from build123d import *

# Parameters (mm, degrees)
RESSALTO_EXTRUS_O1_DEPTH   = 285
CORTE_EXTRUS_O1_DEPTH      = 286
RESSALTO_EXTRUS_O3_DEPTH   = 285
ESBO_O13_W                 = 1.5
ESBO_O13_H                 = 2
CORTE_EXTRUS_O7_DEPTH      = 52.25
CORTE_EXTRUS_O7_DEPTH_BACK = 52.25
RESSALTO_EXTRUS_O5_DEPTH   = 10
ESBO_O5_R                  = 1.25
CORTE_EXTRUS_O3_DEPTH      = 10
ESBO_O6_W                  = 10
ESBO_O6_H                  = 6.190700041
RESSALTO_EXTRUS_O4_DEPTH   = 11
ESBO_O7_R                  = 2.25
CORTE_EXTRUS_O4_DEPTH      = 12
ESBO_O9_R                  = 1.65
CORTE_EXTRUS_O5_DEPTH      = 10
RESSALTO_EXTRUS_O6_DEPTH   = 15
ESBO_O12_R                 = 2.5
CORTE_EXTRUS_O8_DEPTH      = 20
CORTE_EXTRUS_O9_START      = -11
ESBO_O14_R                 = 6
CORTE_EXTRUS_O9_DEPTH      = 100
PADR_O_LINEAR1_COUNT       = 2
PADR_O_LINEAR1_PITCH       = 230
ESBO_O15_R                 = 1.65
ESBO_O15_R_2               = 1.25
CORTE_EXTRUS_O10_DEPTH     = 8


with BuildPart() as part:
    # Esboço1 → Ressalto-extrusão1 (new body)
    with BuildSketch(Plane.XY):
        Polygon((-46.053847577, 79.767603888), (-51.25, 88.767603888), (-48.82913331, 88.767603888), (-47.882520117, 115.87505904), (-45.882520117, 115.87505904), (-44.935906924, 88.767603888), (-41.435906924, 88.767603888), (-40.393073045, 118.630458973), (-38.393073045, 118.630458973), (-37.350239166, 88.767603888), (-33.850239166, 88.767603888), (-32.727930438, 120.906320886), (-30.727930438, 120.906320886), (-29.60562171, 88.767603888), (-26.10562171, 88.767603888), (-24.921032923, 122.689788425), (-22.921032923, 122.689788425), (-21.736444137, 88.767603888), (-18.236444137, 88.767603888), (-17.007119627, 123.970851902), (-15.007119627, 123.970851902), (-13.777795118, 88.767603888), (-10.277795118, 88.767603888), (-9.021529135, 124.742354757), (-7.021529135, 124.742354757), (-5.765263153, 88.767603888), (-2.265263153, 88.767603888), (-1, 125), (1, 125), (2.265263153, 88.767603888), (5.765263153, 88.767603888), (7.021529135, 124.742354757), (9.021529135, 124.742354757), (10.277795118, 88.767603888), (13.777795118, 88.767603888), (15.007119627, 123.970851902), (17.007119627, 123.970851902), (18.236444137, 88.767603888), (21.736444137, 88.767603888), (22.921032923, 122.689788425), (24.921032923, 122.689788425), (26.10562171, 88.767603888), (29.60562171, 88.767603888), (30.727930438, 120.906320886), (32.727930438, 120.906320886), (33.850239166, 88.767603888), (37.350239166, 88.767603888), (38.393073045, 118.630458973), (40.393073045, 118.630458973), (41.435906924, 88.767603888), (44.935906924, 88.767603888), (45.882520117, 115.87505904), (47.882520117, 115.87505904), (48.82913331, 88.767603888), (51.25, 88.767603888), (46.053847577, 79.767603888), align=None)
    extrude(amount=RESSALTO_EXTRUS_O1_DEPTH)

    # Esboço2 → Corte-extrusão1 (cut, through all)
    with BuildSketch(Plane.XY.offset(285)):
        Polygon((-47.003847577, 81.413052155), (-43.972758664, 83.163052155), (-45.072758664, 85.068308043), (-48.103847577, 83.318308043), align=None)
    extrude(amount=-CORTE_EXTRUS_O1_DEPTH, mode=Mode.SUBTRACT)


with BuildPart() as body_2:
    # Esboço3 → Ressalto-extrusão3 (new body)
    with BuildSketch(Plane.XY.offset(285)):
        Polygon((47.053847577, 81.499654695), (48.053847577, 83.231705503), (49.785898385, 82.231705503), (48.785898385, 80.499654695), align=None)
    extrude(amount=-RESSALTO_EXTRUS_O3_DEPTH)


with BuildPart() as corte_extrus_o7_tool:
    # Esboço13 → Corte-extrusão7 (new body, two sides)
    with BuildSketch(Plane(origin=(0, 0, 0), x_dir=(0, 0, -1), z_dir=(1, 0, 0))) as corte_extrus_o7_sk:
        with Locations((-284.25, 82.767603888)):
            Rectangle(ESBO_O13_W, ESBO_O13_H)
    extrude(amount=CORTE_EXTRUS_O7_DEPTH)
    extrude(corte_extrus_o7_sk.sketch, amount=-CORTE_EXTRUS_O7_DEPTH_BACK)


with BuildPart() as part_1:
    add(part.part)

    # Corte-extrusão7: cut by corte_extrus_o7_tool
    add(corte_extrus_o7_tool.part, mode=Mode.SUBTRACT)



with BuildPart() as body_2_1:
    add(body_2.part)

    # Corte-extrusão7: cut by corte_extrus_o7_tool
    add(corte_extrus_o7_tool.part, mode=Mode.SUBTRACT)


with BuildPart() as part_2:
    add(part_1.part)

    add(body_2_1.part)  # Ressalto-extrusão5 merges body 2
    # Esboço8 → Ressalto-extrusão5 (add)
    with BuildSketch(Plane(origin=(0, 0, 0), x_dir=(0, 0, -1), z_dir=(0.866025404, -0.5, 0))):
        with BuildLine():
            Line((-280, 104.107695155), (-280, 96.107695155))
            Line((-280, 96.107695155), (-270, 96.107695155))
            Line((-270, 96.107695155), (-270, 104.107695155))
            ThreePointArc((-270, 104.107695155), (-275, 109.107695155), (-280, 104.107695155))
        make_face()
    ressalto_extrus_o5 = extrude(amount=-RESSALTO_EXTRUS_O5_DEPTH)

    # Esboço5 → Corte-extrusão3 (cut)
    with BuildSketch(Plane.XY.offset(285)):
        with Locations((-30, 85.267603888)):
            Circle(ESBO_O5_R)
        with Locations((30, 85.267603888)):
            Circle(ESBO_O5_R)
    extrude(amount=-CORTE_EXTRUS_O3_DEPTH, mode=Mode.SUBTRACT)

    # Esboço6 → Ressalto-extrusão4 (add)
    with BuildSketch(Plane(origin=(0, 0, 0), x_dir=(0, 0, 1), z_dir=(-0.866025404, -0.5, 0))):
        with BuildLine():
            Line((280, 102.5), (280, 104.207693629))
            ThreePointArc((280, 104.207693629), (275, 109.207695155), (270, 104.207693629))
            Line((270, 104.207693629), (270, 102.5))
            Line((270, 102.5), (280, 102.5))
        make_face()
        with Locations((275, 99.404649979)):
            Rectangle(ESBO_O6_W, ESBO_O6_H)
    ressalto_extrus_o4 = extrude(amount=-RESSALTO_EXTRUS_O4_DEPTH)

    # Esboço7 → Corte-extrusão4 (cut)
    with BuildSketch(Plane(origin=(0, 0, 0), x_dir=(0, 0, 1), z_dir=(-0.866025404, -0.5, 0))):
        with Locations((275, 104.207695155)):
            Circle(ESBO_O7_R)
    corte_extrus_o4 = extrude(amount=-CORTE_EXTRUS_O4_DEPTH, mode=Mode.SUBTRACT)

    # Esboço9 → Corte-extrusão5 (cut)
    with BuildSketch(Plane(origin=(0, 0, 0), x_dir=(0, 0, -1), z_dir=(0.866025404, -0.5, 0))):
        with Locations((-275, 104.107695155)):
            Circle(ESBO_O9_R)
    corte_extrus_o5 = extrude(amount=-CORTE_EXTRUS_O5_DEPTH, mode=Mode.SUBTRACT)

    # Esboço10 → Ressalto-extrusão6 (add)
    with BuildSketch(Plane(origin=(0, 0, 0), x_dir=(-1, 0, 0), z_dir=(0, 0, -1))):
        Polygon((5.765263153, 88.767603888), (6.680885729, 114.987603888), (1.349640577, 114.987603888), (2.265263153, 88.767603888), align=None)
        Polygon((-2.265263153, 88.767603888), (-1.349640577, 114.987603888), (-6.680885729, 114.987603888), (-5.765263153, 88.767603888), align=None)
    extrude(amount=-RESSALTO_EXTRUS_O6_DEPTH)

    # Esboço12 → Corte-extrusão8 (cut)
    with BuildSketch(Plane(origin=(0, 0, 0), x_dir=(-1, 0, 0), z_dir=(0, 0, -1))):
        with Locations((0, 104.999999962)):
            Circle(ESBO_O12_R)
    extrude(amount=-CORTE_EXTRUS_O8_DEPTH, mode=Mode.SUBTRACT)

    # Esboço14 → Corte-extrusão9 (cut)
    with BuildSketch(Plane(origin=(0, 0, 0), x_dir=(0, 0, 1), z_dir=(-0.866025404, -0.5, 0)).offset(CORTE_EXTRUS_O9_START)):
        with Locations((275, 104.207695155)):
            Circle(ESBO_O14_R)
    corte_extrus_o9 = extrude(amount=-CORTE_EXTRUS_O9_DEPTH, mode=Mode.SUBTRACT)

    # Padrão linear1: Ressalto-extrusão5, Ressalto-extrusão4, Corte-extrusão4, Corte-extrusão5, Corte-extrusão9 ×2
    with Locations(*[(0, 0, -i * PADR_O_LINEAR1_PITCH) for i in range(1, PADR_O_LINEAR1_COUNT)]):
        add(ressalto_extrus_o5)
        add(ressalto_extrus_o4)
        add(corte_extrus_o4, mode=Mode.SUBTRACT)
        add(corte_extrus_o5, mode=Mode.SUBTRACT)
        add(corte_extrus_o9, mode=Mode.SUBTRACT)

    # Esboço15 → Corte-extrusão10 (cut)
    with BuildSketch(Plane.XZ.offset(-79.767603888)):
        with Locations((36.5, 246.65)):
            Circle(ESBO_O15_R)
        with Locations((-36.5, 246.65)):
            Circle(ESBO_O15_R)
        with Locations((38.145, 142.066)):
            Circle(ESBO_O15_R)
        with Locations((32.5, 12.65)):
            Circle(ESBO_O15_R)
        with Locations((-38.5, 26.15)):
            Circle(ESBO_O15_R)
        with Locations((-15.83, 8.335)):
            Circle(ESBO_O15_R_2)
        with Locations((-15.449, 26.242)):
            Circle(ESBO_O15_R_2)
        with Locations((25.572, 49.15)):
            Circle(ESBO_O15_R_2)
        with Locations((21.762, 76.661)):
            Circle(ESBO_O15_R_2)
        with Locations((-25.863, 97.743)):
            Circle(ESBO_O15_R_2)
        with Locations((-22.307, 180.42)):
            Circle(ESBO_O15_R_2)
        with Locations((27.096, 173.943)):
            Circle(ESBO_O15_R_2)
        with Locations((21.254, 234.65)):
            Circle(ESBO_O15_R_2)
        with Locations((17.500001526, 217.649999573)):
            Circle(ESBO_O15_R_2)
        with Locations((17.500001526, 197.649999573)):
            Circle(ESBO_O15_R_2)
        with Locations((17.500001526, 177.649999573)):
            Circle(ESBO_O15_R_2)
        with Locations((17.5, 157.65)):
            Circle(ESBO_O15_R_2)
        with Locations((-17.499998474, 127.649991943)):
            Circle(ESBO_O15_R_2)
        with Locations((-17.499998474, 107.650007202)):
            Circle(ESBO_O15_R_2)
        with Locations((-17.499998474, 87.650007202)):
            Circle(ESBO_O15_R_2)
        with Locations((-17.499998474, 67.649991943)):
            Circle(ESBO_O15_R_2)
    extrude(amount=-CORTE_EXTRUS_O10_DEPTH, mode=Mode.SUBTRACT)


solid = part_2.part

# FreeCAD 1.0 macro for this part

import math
import FreeCAD as App
import Part
import Sketcher

V = App.Vector
Q = App.Units.Quantity

doc = App.newDocument("Part")
body = doc.addObject("PartDesign::Body", "Body")

sketch1 = doc.addObject("Sketcher::SketchObject", "Sketch")
body.addObject(sketch1)
sketch1.AttachmentSupport = (doc.XY_Plane, [""])
sketch1.MapMode = "FlatFace"
sketch1.addGeometry([
    Part.LineSegment(V(-51.2, 88.8, 0), V(-46.1, 79.8, 0)),
    Part.LineSegment(V(-46.1, 79.8, 0), V(46.1, 79.8, 0)),
    Part.LineSegment(V(46.1, 79.8, 0), V(51.2, 88.8, 0)),
    Part.LineSegment(V(51.2, 88.8, 0), V(48.8, 88.8, 0)),
    Part.LineSegment(V(48.8, 88.8, 0), V(47.9, 115.9, 0)),
    Part.LineSegment(V(47.9, 115.9, 0), V(45.9, 115.9, 0)),
    Part.LineSegment(V(45.9, 115.9, 0), V(44.9, 88.8, 0)),
    Part.LineSegment(V(44.9, 88.8, 0), V(41.4, 88.8, 0)),
    Part.LineSegment(V(41.4, 88.8, 0), V(40.4, 118.6, 0)),
    Part.LineSegment(V(40.4, 118.6, 0), V(38.4, 118.6, 0)),
    Part.LineSegment(V(38.4, 118.6, 0), V(37.4, 88.8, 0)),
    Part.LineSegment(V(37.4, 88.8, 0), V(33.9, 88.8, 0)),
    Part.LineSegment(V(33.9, 88.8, 0), V(32.7, 120.9, 0)),
    Part.LineSegment(V(32.7, 120.9, 0), V(30.7, 120.9, 0)),
    Part.LineSegment(V(30.7, 120.9, 0), V(29.6, 88.8, 0)),
    Part.LineSegment(V(29.6, 88.8, 0), V(26.1, 88.8, 0)),
    Part.LineSegment(V(26.1, 88.8, 0), V(24.9, 122.7, 0)),
    Part.LineSegment(V(24.9, 122.7, 0), V(22.9, 122.7, 0)),
    Part.LineSegment(V(22.9, 122.7, 0), V(21.7, 88.8, 0)),
    Part.LineSegment(V(21.7, 88.8, 0), V(18.2, 88.8, 0)),
    Part.LineSegment(V(18.2, 88.8, 0), V(17, 124, 0)),
    Part.LineSegment(V(17, 124, 0), V(15, 124, 0)),
    Part.LineSegment(V(15, 124, 0), V(13.8, 88.8, 0)),
    Part.LineSegment(V(13.8, 88.8, 0), V(10.3, 88.8, 0)),
    Part.LineSegment(V(10.3, 88.8, 0), V(9, 124.7, 0)),
    Part.LineSegment(V(9, 124.7, 0), V(7, 124.7, 0)),
    Part.LineSegment(V(7, 124.7, 0), V(5.8, 88.8, 0)),
    Part.LineSegment(V(5.8, 88.8, 0), V(2.3, 88.8, 0)),
    Part.LineSegment(V(2.3, 88.8, 0), V(1, 125, 0)),
    Part.LineSegment(V(1, 125, 0), V(-1, 125, 0)),
    Part.LineSegment(V(-1, 125, 0), V(-2.3, 88.8, 0)),
    Part.LineSegment(V(-2.3, 88.8, 0), V(-5.8, 88.8, 0)),
    Part.LineSegment(V(-5.8, 88.8, 0), V(-7, 124.7, 0)),
    Part.LineSegment(V(-7, 124.7, 0), V(-9, 124.7, 0)),
    Part.LineSegment(V(-9, 124.7, 0), V(-10.3, 88.8, 0)),
    Part.LineSegment(V(-10.3, 88.8, 0), V(-13.8, 88.8, 0)),
    Part.LineSegment(V(-13.8, 88.8, 0), V(-15, 124, 0)),
    Part.LineSegment(V(-15, 124, 0), V(-17, 124, 0)),
    Part.LineSegment(V(-17, 124, 0), V(-18.2, 88.8, 0)),
    Part.LineSegment(V(-18.2, 88.8, 0), V(-21.7, 88.8, 0)),
    Part.LineSegment(V(-21.7, 88.8, 0), V(-22.9, 122.7, 0)),
    Part.LineSegment(V(-22.9, 122.7, 0), V(-24.9, 122.7, 0)),
    Part.LineSegment(V(-24.9, 122.7, 0), V(-26.1, 88.8, 0)),
    Part.LineSegment(V(-26.1, 88.8, 0), V(-29.6, 88.8, 0)),
    Part.LineSegment(V(-29.6, 88.8, 0), V(-30.7, 120.9, 0)),
    Part.LineSegment(V(-30.7, 120.9, 0), V(-32.7, 120.9, 0)),
    Part.LineSegment(V(-32.7, 120.9, 0), V(-33.9, 88.8, 0)),
    Part.LineSegment(V(-33.9, 88.8, 0), V(-37.4, 88.8, 0)),
    Part.LineSegment(V(-37.4, 88.8, 0), V(-38.4, 118.6, 0)),
    Part.LineSegment(V(-38.4, 118.6, 0), V(-40.4, 118.6, 0)),
    Part.LineSegment(V(-40.4, 118.6, 0), V(-41.4, 88.8, 0)),
    Part.LineSegment(V(-41.4, 88.8, 0), V(-44.9, 88.8, 0)),
    Part.LineSegment(V(-44.9, 88.8, 0), V(-45.9, 115.9, 0)),
    Part.LineSegment(V(-45.9, 115.9, 0), V(-47.9, 115.9, 0)),
    Part.LineSegment(V(-47.9, 115.9, 0), V(-48.8, 88.8, 0)),
    Part.LineSegment(V(-48.8, 88.8, 0), V(-51.2, 88.8, 0)),
], False)
sketch1.addConstraint([
    Sketcher.Constraint("Coincident", 0, 2, 1, 1),
    Sketcher.Constraint("Coincident", 1, 2, 2, 1),
    Sketcher.Constraint("Coincident", 2, 2, 3, 1),
    Sketcher.Constraint("Coincident", 3, 2, 4, 1),
    Sketcher.Constraint("Coincident", 4, 2, 5, 1),
    Sketcher.Constraint("Coincident", 5, 2, 6, 1),
    Sketcher.Constraint("Coincident", 6, 2, 7, 1),
    Sketcher.Constraint("Coincident", 7, 2, 8, 1),
    Sketcher.Constraint("Coincident", 8, 2, 9, 1),
    Sketcher.Constraint("Coincident", 9, 2, 10, 1),
    Sketcher.Constraint("Coincident", 10, 2, 11, 1),
    Sketcher.Constraint("Coincident", 11, 2, 12, 1),
    Sketcher.Constraint("Coincident", 12, 2, 13, 1),
    Sketcher.Constraint("Coincident", 13, 2, 14, 1),
    Sketcher.Constraint("Coincident", 14, 2, 15, 1),
    Sketcher.Constraint("Coincident", 15, 2, 16, 1),
    Sketcher.Constraint("Coincident", 16, 2, 17, 1),
    Sketcher.Constraint("Coincident", 17, 2, 18, 1),
    Sketcher.Constraint("Coincident", 18, 2, 19, 1),
    Sketcher.Constraint("Coincident", 19, 2, 20, 1),
    Sketcher.Constraint("Coincident", 20, 2, 21, 1),
    Sketcher.Constraint("Coincident", 21, 2, 22, 1),
    Sketcher.Constraint("Coincident", 22, 2, 23, 1),
    Sketcher.Constraint("Coincident", 23, 2, 24, 1),
    Sketcher.Constraint("Coincident", 24, 2, 25, 1),
    Sketcher.Constraint("Coincident", 25, 2, 26, 1),
    Sketcher.Constraint("Coincident", 26, 2, 27, 1),
    Sketcher.Constraint("Coincident", 27, 2, 28, 1),
    Sketcher.Constraint("Coincident", 28, 2, 29, 1),
    Sketcher.Constraint("Coincident", 29, 2, 30, 1),
    Sketcher.Constraint("Coincident", 30, 2, 31, 1),
    Sketcher.Constraint("Coincident", 31, 2, 32, 1),
    Sketcher.Constraint("Coincident", 32, 2, 33, 1),
    Sketcher.Constraint("Coincident", 33, 2, 34, 1),
    Sketcher.Constraint("Coincident", 34, 2, 35, 1),
    Sketcher.Constraint("Coincident", 35, 2, 36, 1),
    Sketcher.Constraint("Coincident", 36, 2, 37, 1),
    Sketcher.Constraint("Coincident", 37, 2, 38, 1),
    Sketcher.Constraint("Coincident", 38, 2, 39, 1),
    Sketcher.Constraint("Coincident", 39, 2, 40, 1),
    Sketcher.Constraint("Coincident", 40, 2, 41, 1),
    Sketcher.Constraint("Coincident", 41, 2, 42, 1),
    Sketcher.Constraint("Coincident", 42, 2, 43, 1),
    Sketcher.Constraint("Coincident", 43, 2, 44, 1),
    Sketcher.Constraint("Coincident", 44, 2, 45, 1),
    Sketcher.Constraint("Coincident", 45, 2, 46, 1),
    Sketcher.Constraint("Coincident", 46, 2, 47, 1),
    Sketcher.Constraint("Coincident", 47, 2, 48, 1),
    Sketcher.Constraint("Coincident", 48, 2, 49, 1),
    Sketcher.Constraint("Coincident", 49, 2, 50, 1),
    Sketcher.Constraint("Coincident", 50, 2, 51, 1),
    Sketcher.Constraint("Coincident", 51, 2, 52, 1),
    Sketcher.Constraint("Coincident", 52, 2, 53, 1),
    Sketcher.Constraint("Coincident", 53, 2, 54, 1),
    Sketcher.Constraint("Coincident", 54, 2, 55, 1),
    Sketcher.Constraint("Coincident", 55, 2, 0, 1),
    Sketcher.Constraint("Horizontal", 1),
    Sketcher.Constraint("Horizontal", 3),
    Sketcher.Constraint("Horizontal", 5),
    Sketcher.Constraint("Horizontal", 7),
    Sketcher.Constraint("Horizontal", 9),
    Sketcher.Constraint("Horizontal", 11),
    Sketcher.Constraint("Horizontal", 13),
    Sketcher.Constraint("Horizontal", 15),
    Sketcher.Constraint("Horizontal", 17),
    Sketcher.Constraint("Horizontal", 19),
    Sketcher.Constraint("Horizontal", 21),
    Sketcher.Constraint("Horizontal", 23),
    Sketcher.Constraint("Horizontal", 25),
    Sketcher.Constraint("Horizontal", 27),
    Sketcher.Constraint("Horizontal", 29),
    Sketcher.Constraint("Horizontal", 31),
    Sketcher.Constraint("Horizontal", 33),
    Sketcher.Constraint("Horizontal", 35),
    Sketcher.Constraint("Horizontal", 37),
    Sketcher.Constraint("Horizontal", 39),
    Sketcher.Constraint("Horizontal", 41),
    Sketcher.Constraint("Horizontal", 43),
    Sketcher.Constraint("Horizontal", 45),
    Sketcher.Constraint("Horizontal", 47),
    Sketcher.Constraint("Horizontal", 49),
    Sketcher.Constraint("Horizontal", 51),
    Sketcher.Constraint("Horizontal", 53),
    Sketcher.Constraint("Horizontal", 55),
    Sketcher.Constraint("Symmetric", 27, 2, 30, 2, -2),
    Sketcher.Constraint("Symmetric", 25, 2, 32, 2, -2),
    Sketcher.Constraint("Symmetric", 23, 2, 34, 2, -2),
    Sketcher.Constraint("Symmetric", 21, 2, 36, 2, -2),
    Sketcher.Constraint("Symmetric", 19, 2, 38, 2, -2),
    Sketcher.Constraint("Symmetric", 17, 2, 40, 2, -2),
    Sketcher.Constraint("Symmetric", 15, 2, 42, 2, -2),
    Sketcher.Constraint("Symmetric", 13, 2, 44, 2, -2),
    Sketcher.Constraint("Symmetric", 11, 2, 46, 2, -2),
    Sketcher.Constraint("Symmetric", 9, 2, 48, 2, -2),
    Sketcher.Constraint("Symmetric", 7, 2, 50, 2, -2),
    Sketcher.Constraint("Symmetric", 5, 2, 52, 2, -2),
    Sketcher.Constraint("Symmetric", 3, 2, 54, 2, -2),
    Sketcher.Constraint("Parallel", 4, 8),
    Sketcher.Constraint("Parallel", 6, 10),
    Sketcher.Constraint("Parallel", 8, 12),
    Sketcher.Constraint("Parallel", 10, 14),
    Sketcher.Constraint("Parallel", 12, 16),
    Sketcher.Constraint("Parallel", 14, 18),
    Sketcher.Constraint("Parallel", 16, 20),
    Sketcher.Constraint("Parallel", 18, 22),
    Sketcher.Constraint("Parallel", 20, 24),
    Sketcher.Constraint("Parallel", 22, 26),
    Sketcher.Constraint("Parallel", 24, 28),
    Sketcher.Constraint("Parallel", 26, 30),
    Sketcher.Constraint("Parallel", 28, 32),
    Sketcher.Constraint("Parallel", 30, 34),
    Sketcher.Constraint("Parallel", 32, 36),
    Sketcher.Constraint("Parallel", 34, 38),
    Sketcher.Constraint("Parallel", 36, 40),
    Sketcher.Constraint("Parallel", 38, 42),
    Sketcher.Constraint("Parallel", 40, 44),
    Sketcher.Constraint("Parallel", 42, 46),
    Sketcher.Constraint("Parallel", 44, 48),
    Sketcher.Constraint("Parallel", 46, 50),
    Sketcher.Constraint("Parallel", 48, 52),
    Sketcher.Constraint("Parallel", 50, 54),
    Sketcher.Constraint("Horizontal", 3, 2, 6, 2),
    Sketcher.Constraint("Horizontal", 7, 2, 10, 2),
    Sketcher.Constraint("Horizontal", 11, 2, 14, 2),
    Sketcher.Constraint("Horizontal", 15, 2, 18, 2),
    Sketcher.Constraint("Horizontal", 19, 2, 22, 2),
    Sketcher.Constraint("Horizontal", 23, 2, 26, 2),
    Sketcher.Constraint("Equal", 5, 9),
    Sketcher.Constraint("Equal", 7, 11),
    Sketcher.Constraint("Equal", 9, 13),
    Sketcher.Constraint("Equal", 11, 15),
    Sketcher.Constraint("Equal", 13, 17),
    Sketcher.Constraint("Equal", 15, 19),
    Sketcher.Constraint("Equal", 17, 21),
    Sketcher.Constraint("Equal", 19, 23),
    Sketcher.Constraint("Equal", 21, 25),
    Sketcher.Constraint("Equal", 23, 27),
    Sketcher.Constraint("Equal", 25, 29),
    Sketcher.Constraint("Equal", 27, 31),
    Sketcher.Constraint("Equal", 3, 55),
    Sketcher.Constraint("Equal", 0, 2),
    Sketcher.Constraint("DistanceX", 5, 2, 5, 1, 2.0),
    Sketcher.Constraint("Angle", 0, Q("-60 deg")),
    Sketcher.Constraint("Angle", 4, Q("92 deg")),
    Sketcher.Constraint("DistanceX", 7, 2, 7, 1, 3.5),
    Sketcher.Constraint("DistanceY", -1, 1, 28, 2, 125.0),
    Sketcher.Constraint("DistanceY", 1, 2, 2, 2, 9.0),
    Sketcher.Constraint("DistanceX", -1, 1, 2, 2, 51.25),
    Sketcher.Constraint("DistanceY", 5, 2, 8, 2, 2.7554),
    Sketcher.Constraint("DistanceX", 24, 2, 13, 2, 21.706401),
    Sketcher.Constraint("Distance", 4, 27.123978),
    Sketcher.Constraint("Distance", 16, 33.942862),
    Sketcher.Constraint("Distance", 24, 35.996679),
    Sketcher.Constraint("Distance", 28, 36.254481),
    Sketcher.Constraint("DistanceX", 3, 2, 3, 1, 2.420867),
])
pad1 = doc.addObject("PartDesign::Pad", "Pad")
body.addObject(pad1)
pad1.Profile = sketch1
pad1.Length = 285

sketch2 = doc.addObject("Sketcher::SketchObject", "Sketch001")
body.addObject(sketch2)
sketch2.AttachmentSupport = (doc.XY_Plane, [""])
sketch2.MapMode = "FlatFace"
sketch2.AttachmentOffset = App.Placement(V(0, 0, 285), App.Rotation())
sketch2.addGeometry([
    Part.LineSegment(V(-47, 81.4, 0), V(-44, 83.2, 0)),
    Part.LineSegment(V(-44, 83.2, 0), V(-45.1, 85.1, 0)),
    Part.LineSegment(V(-45.1, 85.1, 0), V(-48.1, 83.3, 0)),
    Part.LineSegment(V(-48.1, 83.3, 0), V(-47, 81.4, 0)),
], False)
sketch2.addConstraint([
    Sketcher.Constraint("Coincident", 0, 2, 1, 1),
    Sketcher.Constraint("Coincident", 1, 2, 2, 1),
    Sketcher.Constraint("Coincident", 2, 2, 3, 1),
    Sketcher.Constraint("Coincident", 3, 2, 0, 1),
    Sketcher.Constraint("Perpendicular", 0, 1),
    Sketcher.Constraint("Perpendicular", 1, 2),
    Sketcher.Constraint("Perpendicular", 2, 3),
    Sketcher.Constraint("Angle", 0, Q("30 deg")),
    Sketcher.Constraint("Distance", 0, 3.5),
    Sketcher.Constraint("Distance", 1, 2.2),
    Sketcher.Constraint("DistanceX", 0, 2, -1, 1, 43.972759),
    Sketcher.Constraint("DistanceY", -1, 1, 1, 2, 85.068308),
])
pocket1 = doc.addObject("PartDesign::Pocket", "Pocket")
body.addObject(pocket1)
pocket1.Profile = sketch2
pocket1.Type = "ThroughAll"
body2 = doc.addObject("PartDesign::Body", "Body001")

sketch3 = doc.addObject("Sketcher::SketchObject", "Sketch002")
body2.addObject(sketch3)
sketch3.AttachmentSupport = (doc.getObject("XY_Plane001"), [""])
sketch3.MapMode = "FlatFace"
sketch3.AttachmentOffset = App.Placement(V(0, 0, 285), App.Rotation())
sketch3.addGeometry([
    Part.LineSegment(V(48.1, 83.2, 0), V(47.1, 81.5, 0)),
    Part.LineSegment(V(47.1, 81.5, 0), V(48.8, 80.5, 0)),
    Part.LineSegment(V(48.8, 80.5, 0), V(49.8, 82.2, 0)),
    Part.LineSegment(V(49.8, 82.2, 0), V(48.1, 83.2, 0)),
], False)
sketch3.addConstraint([
    Sketcher.Constraint("Coincident", 0, 2, 1, 1),
    Sketcher.Constraint("Coincident", 1, 2, 2, 1),
    Sketcher.Constraint("Coincident", 2, 2, 3, 1),
    Sketcher.Constraint("Coincident", 3, 2, 0, 1),
    Sketcher.Constraint("Perpendicular", 0, 1),
    Sketcher.Constraint("Perpendicular", 1, 2),
    Sketcher.Constraint("Perpendicular", 2, 3),
    Sketcher.Constraint("Equal", 0, 1),
    Sketcher.Constraint("Angle", 0, Q("-120 deg")),
    Sketcher.Constraint("Distance", 0, 2.0),
    Sketcher.Constraint("DistanceX", -1, 1, 1, 2, 48.785898),
    Sketcher.Constraint("DistanceY", -1, 1, 0, 2, 81.499655),
])
pad2 = doc.addObject("PartDesign::Pad", "Pad001")
body2.addObject(pad2)
pad2.Profile = sketch3
pad2.Length = 285
pad2.Reversed = True
body3 = doc.addObject("PartDesign::Body", "Body002")

sketch4 = doc.addObject("Sketcher::SketchObject", "Sketch003")
body3.addObject(sketch4)
sketch4.AttachmentSupport = (doc.getObject("YZ_Plane002"), [""])
sketch4.MapMode = "FlatFace"
sketch4.addGeometry([
    Part.LineSegment(V(83.8, 285, 0), V(81.8, 285, 0)),
    Part.LineSegment(V(81.8, 285, 0), V(81.8, 283.5, 0)),
    Part.LineSegment(V(81.8, 283.5, 0), V(83.8, 283.5, 0)),
    Part.LineSegment(V(83.8, 283.5, 0), V(83.8, 285, 0)),
], False)
sketch4.addConstraint([
    Sketcher.Constraint("Coincident", 0, 2, 1, 1),
    Sketcher.Constraint("Coincident", 1, 2, 2, 1),
    Sketcher.Constraint("Coincident", 2, 2, 3, 1),
    Sketcher.Constraint("Coincident", 3, 2, 0, 1),
    Sketcher.Constraint("Horizontal", 0),
    Sketcher.Constraint("Vertical", 1),
    Sketcher.Constraint("Horizontal", 2),
    Sketcher.Constraint("Vertical", 3),
    Sketcher.Constraint("DistanceX", 0, 2, 0, 1, 2.0),
    Sketcher.Constraint("DistanceY", 1, 2, 1, 1, 1.5),
    Sketcher.Constraint("DistanceY", -1, 1, 0, 2, 285.0),
    Sketcher.Constraint("DistanceX", -1, 1, 0, 2, 81.767604),
])
pad3 = doc.addObject("PartDesign::Pad", "Pad002")
body3.addObject(pad3)
pad3.Profile = sketch4
pad3.Type = "TwoLengths"
pad3.Length = 52.25
pad3.Length2 = 52.25
doc.recompute()

body4 = doc.addObject("PartDesign::Body", "Body003")
body4.BaseFeature = body3
boolean = doc.addObject("PartDesign::Boolean", "Boolean")
body.addObject(boolean)
boolean.Type = "Cut"
boolean.addObjects([body4])
doc.recompute()

boolean2 = doc.addObject("PartDesign::Boolean", "Boolean001")
body2.addObject(boolean2)
boolean2.Type = "Cut"
boolean2.addObjects([body3])
doc.recompute()

boolean3 = doc.addObject("PartDesign::Boolean", "Boolean002")
body.addObject(boolean3)
boolean3.Type = "Fuse"
boolean3.addObjects([body2])

sketch5 = doc.addObject("Sketcher::SketchObject", "Sketch004")
body.addObject(sketch5)
sketch5.Placement = App.Placement(V(0, 0, 0), App.Rotation(V(0, 0, -1), V(0.5, 0.866025404, 0), V(0.866025404, -0.5, 0), "ZXY"))
sketch5.addGeometry([
    Part.LineSegment(V(-280, 104, 0), V(-280, 96, 0)),
    Part.LineSegment(V(-280, 96, 0), V(-270, 96, 0)),
    Part.LineSegment(V(-270, 96, 0), V(-270, 104, 0)),
    Part.ArcOfCircle(Part.Circle(V(-275, 104, 0), V(0, 0, 1), 5), math.radians(0), math.radians(180)),
], False)
sketch5.addConstraint([
    Sketcher.Constraint("Coincident", 0, 2, 1, 1),
    Sketcher.Constraint("Coincident", 1, 2, 2, 1),
    Sketcher.Constraint("Tangent", 2, 2, 3, 1),
    Sketcher.Constraint("Tangent", 3, 2, 0, 1),
    Sketcher.Constraint("Vertical", 0),
    Sketcher.Constraint("Horizontal", 1),
    Sketcher.Constraint("Vertical", 2),
    Sketcher.Constraint("Radius", 3, 5.0),
    Sketcher.Constraint("DistanceY", 0, 2, 0, 1, 8.0),
    Sketcher.Constraint("DistanceX", 3, 3, -1, 1, 275.0),
    Sketcher.Constraint("DistanceY", -1, 1, 3, 3, 104.107695),
])
pad4 = doc.addObject("PartDesign::Pad", "Pad003")
body.addObject(pad4)
pad4.Profile = sketch5
pad4.Length = 10
pad4.Reversed = True

sketch6 = doc.addObject("Sketcher::SketchObject", "Sketch005")
body.addObject(sketch6)
sketch6.AttachmentSupport = (doc.XY_Plane, [""])
sketch6.MapMode = "FlatFace"
sketch6.AttachmentOffset = App.Placement(V(0, 0, 285), App.Rotation())
sketch6.addGeometry([
    Part.Circle(V(-30, 85.3, 0), V(0, 0, 1), 1.2),
    Part.Circle(V(30, 85.3, 0), V(0, 0, 1), 1.2),
], False)
sketch6.addConstraint([
    Sketcher.Constraint("Equal", 0, 1),
    Sketcher.Constraint("Symmetric", 0, 3, 1, 3, -2),
    Sketcher.Constraint("Diameter", 0, 2.5),
    Sketcher.Constraint("DistanceX", 0, 3, -1, 1, 30.0),
    Sketcher.Constraint("DistanceY", -1, 1, 0, 3, 85.267604),
])
pocket2 = doc.addObject("PartDesign::Pocket", "Pocket001")
body.addObject(pocket2)
pocket2.Profile = sketch6
pocket2.Length = 10

sketch7 = doc.addObject("Sketcher::SketchObject", "Sketch006")
body.addObject(sketch7)
sketch7.Placement = App.Placement(V(0, 0, 0), App.Rotation(V(0, 0, 1), V(-0.5, 0.866025404, 0), V(-0.866025404, -0.5, 0), "ZXY"))
sketch7.addGeometry([
    Part.ArcOfCircle(Part.Circle(V(275, 104, 0), V(0, 0, 1), 5), math.radians(0), math.radians(180)),
    Part.LineSegment(V(270, 104, 0), V(270, 96, 0)),
    Part.LineSegment(V(270, 96, 0), V(280, 96, 0)),
    Part.LineSegment(V(280, 96, 0), V(280, 104, 0)),
], False)
sketch7.addConstraint([
    Sketcher.Constraint("Tangent", 0, 2, 1, 1),
    Sketcher.Constraint("Coincident", 1, 2, 2, 1),
    Sketcher.Constraint("Coincident", 2, 2, 3, 1),
    Sketcher.Constraint("Tangent", 3, 2, 0, 1),
    Sketcher.Constraint("Vertical", 1),
    Sketcher.Constraint("Horizontal", 2),
    Sketcher.Constraint("Vertical", 3),
    Sketcher.Constraint("Radius", 0, 5.0),
    Sketcher.Constraint("DistanceX", -1, 1, 0, 3, 275.0),
    Sketcher.Constraint("DistanceY", -1, 1, 1, 2, 96.3093),
    Sketcher.Constraint("DistanceY", 1, 2, 1, 1, 7.898394),
])
pad5 = doc.addObject("PartDesign::Pad", "Pad004")
body.addObject(pad5)
pad5.Profile = sketch7
pad5.Length = 11
pad5.Reversed = True

sketch8 = doc.addObject("Sketcher::SketchObject", "Sketch007")
body.addObject(sketch8)
sketch8.Placement = App.Placement(V(0, 0, 0), App.Rotation(V(0, 0, 1), V(-0.5, 0.866025404, 0), V(-0.866025404, -0.5, 0), "ZXY"))
sketch8.addGeometry(Part.Circle(V(275, 104.2, 0), V(0, 0, 1), 2.2), False)
sketch8.addConstraint([
    Sketcher.Constraint("Diameter", 0, 4.5),
    Sketcher.Constraint("DistanceX", -1, 1, 0, 3, 275.0),
    Sketcher.Constraint("DistanceY", -1, 1, 0, 3, 104.207695),
])
pocket3 = doc.addObject("PartDesign::Pocket", "Pocket002")
body.addObject(pocket3)
pocket3.Profile = sketch8
pocket3.Length = 12

sketch9 = doc.addObject("Sketcher::SketchObject", "Sketch008")
body.addObject(sketch9)
sketch9.Placement = App.Placement(V(0, 0, 0), App.Rotation(V(0, 0, -1), V(0.5, 0.866025404, 0), V(0.866025404, -0.5, 0), "ZXY"))
sketch9.addGeometry(Part.Circle(V(-275, 104.1, 0), V(0, 0, 1), 1.6), False)
sketch9.addConstraint([
    Sketcher.Constraint("Diameter", 0, 3.3),
    Sketcher.Constraint("DistanceX", 0, 3, -1, 1, 275.0),
    Sketcher.Constraint("DistanceY", -1, 1, 0, 3, 104.107695),
])
pocket4 = doc.addObject("PartDesign::Pocket", "Pocket003")
body.addObject(pocket4)
pocket4.Profile = sketch9
pocket4.Length = 10

sketch10 = doc.addObject("Sketcher::SketchObject", "Sketch009")
body.addObject(sketch10)
sketch10.AttachmentSupport = (doc.XY_Plane, [""])
sketch10.MapMode = "FlatFace"
sketch10.addGeometry([
    Part.LineSegment(V(-5.8, 88.8, 0), V(-6.7, 115, 0)),
    Part.LineSegment(V(-6.7, 115, 0), V(-1.3, 115, 0)),
    Part.LineSegment(V(-1.3, 115, 0), V(-2.3, 88.8, 0)),
    Part.LineSegment(V(-2.3, 88.8, 0), V(-5.8, 88.8, 0)),
    Part.LineSegment(V(2.3, 88.8, 0), V(1.3, 115, 0)),
    Part.LineSegment(V(1.3, 115, 0), V(6.7, 115, 0)),
    Part.LineSegment(V(6.7, 115, 0), V(5.8, 88.8, 0)),
    Part.LineSegment(V(5.8, 88.8, 0), V(2.3, 88.8, 0)),
], False)
sketch10.addConstraint([
    Sketcher.Constraint("Coincident", 0, 2, 1, 1),
    Sketcher.Constraint("Coincident", 1, 2, 2, 1),
    Sketcher.Constraint("Coincident", 2, 2, 3, 1),
    Sketcher.Constraint("Coincident", 3, 2, 0, 1),
    Sketcher.Constraint("Coincident", 4, 2, 5, 1),
    Sketcher.Constraint("Coincident", 5, 2, 6, 1),
    Sketcher.Constraint("Coincident", 6, 2, 7, 1),
    Sketcher.Constraint("Coincident", 7, 2, 4, 1),
    Sketcher.Constraint("Horizontal", 1),
    Sketcher.Constraint("Horizontal", 3),
    Sketcher.Constraint("Horizontal", 5),
    Sketcher.Constraint("Horizontal", 7),
    Sketcher.Constraint("Symmetric", 1, 2, 4, 2, -2),
    Sketcher.Constraint("Symmetric", 3, 2, 6, 2, -2),
    Sketcher.Constraint("Parallel", 0, 4),
    Sketcher.Constraint("Parallel", 2, 6),
    Sketcher.Constraint("Equal", 1, 5),
    Sketcher.Constraint("Angle", 0, Q("92 deg")),
    Sketcher.Constraint("DistanceX", 3, 2, 3, 1, 3.5),
    Sketcher.Constraint("DistanceY", 2, 2, 1, 2, 26.22),
    Sketcher.Constraint("DistanceX", 1, 2, -1, 1, 1.349641),
    Sketcher.Constraint("DistanceY", -1, 1, 0, 2, 114.987604),
])
pad6 = doc.addObject("PartDesign::Pad", "Pad005")
body.addObject(pad6)
pad6.Profile = sketch10
pad6.Length = 15

sketch11 = doc.addObject("Sketcher::SketchObject", "Sketch010")
body.addObject(sketch11)
sketch11.AttachmentSupport = (doc.XY_Plane, [""])
sketch11.MapMode = "FlatFace"
sketch11.addGeometry(Part.Circle(V(0, 105, 0), V(0, 0, 1), 2.5), False)
sketch11.addConstraint([
    Sketcher.Constraint("PointOnObject", 0, 3, -2),
    Sketcher.Constraint("Diameter", 0, 5.0),
    Sketcher.Constraint("DistanceY", -1, 1, 0, 3, 105.0),
])
pocket5 = doc.addObject("PartDesign::Pocket", "Pocket004")
body.addObject(pocket5)
pocket5.Profile = sketch11
pocket5.Length = 20
pocket5.Reversed = True

sketch12 = doc.addObject("Sketcher::SketchObject", "Sketch011")
body.addObject(sketch12)
sketch12.Placement = App.Placement(V(9.526279, 5.5, 0), App.Rotation(V(0, 0, 1), V(-0.5, 0.866025404, 0), V(-0.866025404, -0.5, 0), "ZXY"))
sketch12.addGeometry(Part.Circle(V(275, 104, 0), V(0, 0, 1), 6), False)
sketch12.addConstraint([
    Sketcher.Constraint("Diameter", 0, 12.0),
    Sketcher.Constraint("DistanceX", -1, 1, 0, 3, 275.0),
    Sketcher.Constraint("DistanceY", -1, 1, 0, 3, 104.207695),
])
pocket6 = doc.addObject("PartDesign::Pocket", "Pocket005")
body.addObject(pocket6)
pocket6.Profile = sketch12
pocket6.Length = 100
doc.recompute()

linearpattern = doc.addObject("PartDesign::LinearPattern", "LinearPattern")
body.addObject(linearpattern)
linearpattern.Originals = [pad4, pad5, pocket3, pocket4, pocket6]
linearpattern.Direction = (doc.Z_Axis, [""])
linearpattern.Mode = "offset"
linearpattern.Offset = 230
linearpattern.Occurrences = 2
linearpattern.Reversed = True
body.Tip = linearpattern

sketch13 = doc.addObject("Sketcher::SketchObject", "Sketch012")
body.addObject(sketch13)
sketch13.AttachmentSupport = (doc.XZ_Plane, [""])
sketch13.MapMode = "FlatFace"
sketch13.AttachmentOffset = App.Placement(V(0, 0, -79.767604), App.Rotation())
sketch13.addGeometry([
    Part.Circle(V(36.5, 246.7, 0), V(0, 0, 1), 1.6),
    Part.Circle(V(-36.5, 246.7, 0), V(0, 0, 1), 1.6),
    Part.Circle(V(38.1, 142.1, 0), V(0, 0, 1), 1.6),
    Part.Circle(V(32.5, 12.7, 0), V(0, 0, 1), 1.6),
    Part.Circle(V(-38.5, 26.1, 0), V(0, 0, 1), 1.6),
    Part.Circle(V(-15.8, 8.3, 0), V(0, 0, 1), 1.2),
    Part.Circle(V(-15.4, 26.2, 0), V(0, 0, 1), 1.2),
    Part.Circle(V(25.6, 49.1, 0), V(0, 0, 1), 1.2),
    Part.Circle(V(21.8, 76.7, 0), V(0, 0, 1), 1.2),
    Part.Circle(V(-25.9, 97.7, 0), V(0, 0, 1), 1.2),
    Part.Circle(V(-22.3, 180.4, 0), V(0, 0, 1), 1.2),
    Part.Circle(V(27.1, 173.9, 0), V(0, 0, 1), 1.2),
    Part.Circle(V(21.3, 234.7, 0), V(0, 0, 1), 1.2),
    Part.Circle(V(17.5, 217.6, 0), V(0, 0, 1), 1.2),
    Part.Circle(V(17.5, 197.6, 0), V(0, 0, 1), 1.2),
    Part.Circle(V(17.5, 177.6, 0), V(0, 0, 1), 1.2),
    Part.Circle(V(17.5, 157.7, 0), V(0, 0, 1), 1.2),
    Part.Circle(V(-17.5, 127.6, 0), V(0, 0, 1), 1.2),
    Part.Circle(V(-17.5, 107.7, 0), V(0, 0, 1), 1.2),
    Part.Circle(V(-17.5, 87.7, 0), V(0, 0, 1), 1.2),
    Part.Circle(V(-17.5, 67.6, 0), V(0, 0, 1), 1.2),
], False)
sketch13.addConstraint([
    Sketcher.Constraint("Equal", 0, 1),
    Sketcher.Constraint("Equal", 1, 2),
    Sketcher.Constraint("Equal", 2, 3),
    Sketcher.Constraint("Equal", 3, 4),
    Sketcher.Constraint("Equal", 5, 6),
    Sketcher.Constraint("Equal", 6, 7),
    Sketcher.Constraint("Equal", 7, 8),
    Sketcher.Constraint("Equal", 8, 9),
    Sketcher.Constraint("Equal", 9, 10),
    Sketcher.Constraint("Equal", 10, 11),
    Sketcher.Constraint("Equal", 11, 12),
    Sketcher.Constraint("Equal", 12, 13),
    Sketcher.Constraint("Equal", 13, 14),
    Sketcher.Constraint("Equal", 14, 15),
    Sketcher.Constraint("Equal", 15, 16),
    Sketcher.Constraint("Equal", 16, 17),
    Sketcher.Constraint("Equal", 17, 18),
    Sketcher.Constraint("Equal", 18, 19),
    Sketcher.Constraint("Equal", 19, 20),
    Sketcher.Constraint("Symmetric", 0, 3, 1, 3, -2),
    Sketcher.Constraint("Vertical", 13, 3, 14, 3),
    Sketcher.Constraint("Vertical", 14, 3, 15, 3),
    Sketcher.Constraint("Vertical", 15, 3, 16, 3),
    Sketcher.Constraint("Vertical", 17, 3, 18, 3),
    Sketcher.Constraint("Vertical", 18, 3, 19, 3),
    Sketcher.Constraint("Vertical", 19, 3, 20, 3),
    Sketcher.Constraint("Diameter", 0, 3.3),
    Sketcher.Constraint("Diameter", 5, 2.5),
    Sketcher.Constraint("DistanceX", 1, 3, 0, 3, 73.0),
    Sketcher.Constraint("DistanceX", 3, 3, 0, 3, 4.0),
    Sketcher.Constraint("DistanceY", 3, 3, 0, 3, 234.0),
    Sketcher.Constraint("DistanceX", 4, 3, 3, 3, 71.0),
    Sketcher.Constraint("DistanceY", 4, 3, 7, 3, 23.0),
    Sketcher.Constraint("DistanceY", 12, 3, 0, 3, 12.0),
    Sketcher.Constraint("DistanceY", 13, 3, 12, 3, 17.0),
    Sketcher.Constraint("DistanceX", 13, 3, 0, 3, 18.999998),
    Sketcher.Constraint("DistanceY", 14, 3, 13, 3, 20.0),
    Sketcher.Constraint("DistanceY", 15, 3, 14, 3, 20.0),
    Sketcher.Constraint("DistanceY", 16, 3, 15, 3, 20.0),
    Sketcher.Constraint("DistanceX", 17, 3, 16, 3, 34.999998),
    Sketcher.Constraint("DistanceY", 19, 3, 18, 3, 20.0),
    Sketcher.Constraint("DistanceY", 3, 3, 4, 3, 13.5),
    Sketcher.Constraint("DistanceY", 9, 3, 11, 3, 76.2),
    Sketcher.Constraint("DistanceY", -1, 1, 0, 3, 246.65),
    Sketcher.Constraint("DistanceX", 5, 3, -1, 1, 15.83),
    Sketcher.Constraint("DistanceY", -1, 1, 10, 3, 180.42),
    Sketcher.Constraint("DistanceX", 8, 3, 7, 3, 3.81),
    Sketcher.Constraint("DistanceX", -1, 1, 2, 3, 38.145),
    Sketcher.Constraint("DistanceY", -1, 1, 2, 3, 142.066),
    Sketcher.Constraint("DistanceY", -1, 1, 5, 3, 8.335),
    Sketcher.Constraint("DistanceX", 6, 3, -1, 1, 15.449),
    Sketcher.Constraint("DistanceY", -1, 1, 6, 3, 26.242),
    Sketcher.Constraint("DistanceX", -1, 1, 7, 3, 25.572),
    Sketcher.Constraint("DistanceY", -1, 1, 8, 3, 76.661),
    Sketcher.Constraint("DistanceX", 9, 3, -1, 1, 25.863),
    Sketcher.Constraint("DistanceY", -1, 1, 9, 3, 97.743),
    Sketcher.Constraint("DistanceX", 10, 3, -1, 1, 22.307),
    Sketcher.Constraint("DistanceX", -1, 1, 11, 3, 27.096),
    Sketcher.Constraint("DistanceX", -1, 1, 12, 3, 21.254),
    Sketcher.Constraint("DistanceY", -1, 1, 17, 3, 127.649992),
    Sketcher.Constraint("DistanceY", -1, 1, 20, 3, 67.649992),
    Sketcher.Constraint("DistanceY", -1, 1, 18, 3, 107.650007),
])
pocket7 = doc.addObject("PartDesign::Pocket", "Pocket006")
body.addObject(pocket7)
pocket7.Profile = sketch13
pocket7.Length = 8

doc.recompute()
